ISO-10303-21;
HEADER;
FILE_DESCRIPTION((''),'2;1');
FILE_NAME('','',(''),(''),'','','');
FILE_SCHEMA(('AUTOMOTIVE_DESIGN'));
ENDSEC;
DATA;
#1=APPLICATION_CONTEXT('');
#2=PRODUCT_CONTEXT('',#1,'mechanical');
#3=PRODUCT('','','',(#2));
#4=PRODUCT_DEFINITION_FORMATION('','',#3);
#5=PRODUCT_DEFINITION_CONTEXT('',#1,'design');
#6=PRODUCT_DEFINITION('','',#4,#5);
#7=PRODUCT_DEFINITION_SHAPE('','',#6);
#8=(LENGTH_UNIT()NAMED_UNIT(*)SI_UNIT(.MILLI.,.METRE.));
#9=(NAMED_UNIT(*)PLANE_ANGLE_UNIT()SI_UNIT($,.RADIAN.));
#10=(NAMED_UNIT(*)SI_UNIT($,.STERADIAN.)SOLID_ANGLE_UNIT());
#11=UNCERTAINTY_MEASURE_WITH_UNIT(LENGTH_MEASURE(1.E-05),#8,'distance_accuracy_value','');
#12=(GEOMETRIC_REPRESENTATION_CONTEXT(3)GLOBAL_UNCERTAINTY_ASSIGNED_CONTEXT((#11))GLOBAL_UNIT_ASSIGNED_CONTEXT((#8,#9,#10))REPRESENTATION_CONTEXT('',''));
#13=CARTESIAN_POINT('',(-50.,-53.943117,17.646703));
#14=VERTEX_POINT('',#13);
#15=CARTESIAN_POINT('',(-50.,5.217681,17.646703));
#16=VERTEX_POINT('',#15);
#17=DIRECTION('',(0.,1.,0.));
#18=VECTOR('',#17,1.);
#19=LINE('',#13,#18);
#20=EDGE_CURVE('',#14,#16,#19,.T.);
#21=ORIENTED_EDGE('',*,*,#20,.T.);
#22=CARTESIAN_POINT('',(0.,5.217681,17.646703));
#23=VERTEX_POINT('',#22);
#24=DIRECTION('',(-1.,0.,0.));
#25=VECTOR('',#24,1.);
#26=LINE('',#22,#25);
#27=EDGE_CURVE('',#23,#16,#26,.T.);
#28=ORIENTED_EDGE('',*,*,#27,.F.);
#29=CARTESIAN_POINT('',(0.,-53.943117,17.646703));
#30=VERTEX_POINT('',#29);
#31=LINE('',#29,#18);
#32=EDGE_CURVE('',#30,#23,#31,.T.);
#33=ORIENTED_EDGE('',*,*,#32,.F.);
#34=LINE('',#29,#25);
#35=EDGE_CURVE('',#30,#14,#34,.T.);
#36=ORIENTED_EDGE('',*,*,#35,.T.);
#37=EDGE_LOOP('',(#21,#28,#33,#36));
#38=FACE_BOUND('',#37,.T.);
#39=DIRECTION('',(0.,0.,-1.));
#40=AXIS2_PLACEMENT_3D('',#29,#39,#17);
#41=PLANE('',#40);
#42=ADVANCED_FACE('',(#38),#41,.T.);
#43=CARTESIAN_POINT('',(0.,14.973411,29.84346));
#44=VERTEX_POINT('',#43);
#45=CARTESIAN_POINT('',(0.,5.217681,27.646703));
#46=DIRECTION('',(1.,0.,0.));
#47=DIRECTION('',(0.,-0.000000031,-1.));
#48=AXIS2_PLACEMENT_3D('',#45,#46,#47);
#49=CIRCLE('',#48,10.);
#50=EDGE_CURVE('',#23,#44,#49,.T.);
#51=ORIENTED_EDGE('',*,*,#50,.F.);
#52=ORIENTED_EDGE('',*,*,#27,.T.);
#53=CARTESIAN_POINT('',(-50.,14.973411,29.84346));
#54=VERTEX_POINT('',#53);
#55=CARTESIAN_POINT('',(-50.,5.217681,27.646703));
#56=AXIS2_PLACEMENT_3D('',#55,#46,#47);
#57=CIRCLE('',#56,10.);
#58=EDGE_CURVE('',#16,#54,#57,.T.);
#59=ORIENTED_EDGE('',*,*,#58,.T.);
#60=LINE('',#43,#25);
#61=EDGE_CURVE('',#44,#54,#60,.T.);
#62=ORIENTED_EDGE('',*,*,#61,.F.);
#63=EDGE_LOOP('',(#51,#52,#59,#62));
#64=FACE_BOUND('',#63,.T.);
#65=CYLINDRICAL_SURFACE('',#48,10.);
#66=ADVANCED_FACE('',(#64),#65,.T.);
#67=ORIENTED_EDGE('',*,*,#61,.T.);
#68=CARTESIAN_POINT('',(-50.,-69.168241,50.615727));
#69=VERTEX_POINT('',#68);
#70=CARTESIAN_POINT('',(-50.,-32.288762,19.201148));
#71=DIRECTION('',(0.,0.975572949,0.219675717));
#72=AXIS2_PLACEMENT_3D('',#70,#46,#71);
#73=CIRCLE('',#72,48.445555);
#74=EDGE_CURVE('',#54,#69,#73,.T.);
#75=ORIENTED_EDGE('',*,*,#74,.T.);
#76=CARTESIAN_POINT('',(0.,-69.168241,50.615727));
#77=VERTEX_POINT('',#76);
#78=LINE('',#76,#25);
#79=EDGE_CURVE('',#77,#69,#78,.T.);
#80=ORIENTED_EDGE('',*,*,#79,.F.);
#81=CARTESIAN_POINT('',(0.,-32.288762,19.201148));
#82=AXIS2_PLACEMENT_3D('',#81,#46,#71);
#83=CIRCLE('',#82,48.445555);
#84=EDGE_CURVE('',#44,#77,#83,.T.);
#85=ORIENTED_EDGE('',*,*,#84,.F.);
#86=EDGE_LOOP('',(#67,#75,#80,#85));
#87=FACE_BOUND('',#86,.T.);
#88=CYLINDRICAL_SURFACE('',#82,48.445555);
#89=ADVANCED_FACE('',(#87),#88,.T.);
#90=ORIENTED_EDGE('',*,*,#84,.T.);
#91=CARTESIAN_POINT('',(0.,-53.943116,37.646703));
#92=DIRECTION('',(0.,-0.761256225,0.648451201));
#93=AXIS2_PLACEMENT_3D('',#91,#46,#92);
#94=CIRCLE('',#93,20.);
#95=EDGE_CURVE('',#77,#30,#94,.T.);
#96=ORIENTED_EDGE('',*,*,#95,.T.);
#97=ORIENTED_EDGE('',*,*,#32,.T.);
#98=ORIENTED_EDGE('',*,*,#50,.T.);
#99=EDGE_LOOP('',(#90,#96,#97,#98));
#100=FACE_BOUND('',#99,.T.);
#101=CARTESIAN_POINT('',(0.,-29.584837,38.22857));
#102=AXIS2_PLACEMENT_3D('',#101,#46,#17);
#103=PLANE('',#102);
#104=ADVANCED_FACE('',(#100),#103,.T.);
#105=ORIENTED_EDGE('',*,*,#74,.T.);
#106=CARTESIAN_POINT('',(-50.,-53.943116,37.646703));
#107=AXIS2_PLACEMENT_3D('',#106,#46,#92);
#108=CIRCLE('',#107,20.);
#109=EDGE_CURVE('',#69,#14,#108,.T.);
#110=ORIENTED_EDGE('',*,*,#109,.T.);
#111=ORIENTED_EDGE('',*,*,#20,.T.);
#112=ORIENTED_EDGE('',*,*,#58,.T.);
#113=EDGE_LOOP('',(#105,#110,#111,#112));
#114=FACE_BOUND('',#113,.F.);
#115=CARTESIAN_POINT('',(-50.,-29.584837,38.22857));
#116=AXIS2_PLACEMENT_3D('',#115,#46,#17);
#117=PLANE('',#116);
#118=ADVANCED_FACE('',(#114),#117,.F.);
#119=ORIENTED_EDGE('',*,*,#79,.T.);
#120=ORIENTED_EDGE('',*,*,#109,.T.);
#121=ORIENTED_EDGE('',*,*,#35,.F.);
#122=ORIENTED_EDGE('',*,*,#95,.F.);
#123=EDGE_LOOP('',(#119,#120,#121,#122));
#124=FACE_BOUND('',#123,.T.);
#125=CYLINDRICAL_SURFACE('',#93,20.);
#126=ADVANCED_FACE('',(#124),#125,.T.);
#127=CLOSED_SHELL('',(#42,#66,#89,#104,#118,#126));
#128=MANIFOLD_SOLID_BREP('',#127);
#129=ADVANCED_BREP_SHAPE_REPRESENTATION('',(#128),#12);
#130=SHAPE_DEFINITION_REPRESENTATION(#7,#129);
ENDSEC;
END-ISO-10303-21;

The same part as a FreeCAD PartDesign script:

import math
import FreeCAD as App
import Part
import Sketcher

V = App.Vector
Q = App.Units.Quantity

doc = App.newDocument("Part")
body = doc.addObject("PartDesign::Body", "Body")

# Sketch on YZ plane
sketch1 = body.newObject("Sketcher::SketchObject", "Sketch")
sketch1.AttachmentSupport = (doc.getObject("YZ_Plane"), [""])
sketch1.MapMode = "FlatFace"
sketch1.addGeometry(Part.ArcOfCircle(Part.Circle(V(-54, 38, 0), V(0, 0, 1), 20), math.radians(140), math.radians(270)), False)
sketch1.addGeometry(Part.LineSegment(V(-54, 18, 0), V(5, 18, 0)), False)
sketch1.addGeometry(Part.ArcOfCircle(Part.Circle(V(5, 28, 0), V(0, 0, 1), 10), math.radians(-90), math.radians(13)), False)
sketch1.addGeometry(Part.ArcOfCircle(Part.Circle(V(-32, 19, 0), V(0, 0, 1), 48), math.radians(13), math.radians(140)), False)
sketch1.addConstraint(Sketcher.Constraint("Tangent", 0, 2, 1, 1))
sketch1.addConstraint(Sketcher.Constraint("Tangent", 1, 2, 2, 1))
sketch1.addConstraint(Sketcher.Constraint("Tangent", 2, 2, 3, 1))
sketch1.addConstraint(Sketcher.Constraint("Tangent", 3, 2, 0, 1))
sketch1.addConstraint(Sketcher.Constraint("Horizontal", 1))
sketch1.addConstraint(Sketcher.Constraint("Radius", 0, Q("20 mm")))
sketch1.addConstraint(Sketcher.Constraint("Radius", 2, Q("10 mm")))
sketch1.addConstraint(Sketcher.Constraint("Radius", 3, Q("48.445555 mm")))
sketch1.addConstraint(Sketcher.Constraint("DistanceX", 0, 2, 2, 3, Q("59.160798 mm")))
sketch1.addConstraint(Sketcher.Constraint("DistanceX", -1, 1, 2, 3, Q("5.217681 mm")))
sketch1.addConstraint(Sketcher.Constraint("DistanceY", -1, 1, 3, 3, Q("19.201148 mm")))
pad1 = body.newObject("PartDesign::Pad", "Pad")
pad1.Profile = sketch1
pad1.Length = 50
pad1.Reversed = True

doc.recompute()
